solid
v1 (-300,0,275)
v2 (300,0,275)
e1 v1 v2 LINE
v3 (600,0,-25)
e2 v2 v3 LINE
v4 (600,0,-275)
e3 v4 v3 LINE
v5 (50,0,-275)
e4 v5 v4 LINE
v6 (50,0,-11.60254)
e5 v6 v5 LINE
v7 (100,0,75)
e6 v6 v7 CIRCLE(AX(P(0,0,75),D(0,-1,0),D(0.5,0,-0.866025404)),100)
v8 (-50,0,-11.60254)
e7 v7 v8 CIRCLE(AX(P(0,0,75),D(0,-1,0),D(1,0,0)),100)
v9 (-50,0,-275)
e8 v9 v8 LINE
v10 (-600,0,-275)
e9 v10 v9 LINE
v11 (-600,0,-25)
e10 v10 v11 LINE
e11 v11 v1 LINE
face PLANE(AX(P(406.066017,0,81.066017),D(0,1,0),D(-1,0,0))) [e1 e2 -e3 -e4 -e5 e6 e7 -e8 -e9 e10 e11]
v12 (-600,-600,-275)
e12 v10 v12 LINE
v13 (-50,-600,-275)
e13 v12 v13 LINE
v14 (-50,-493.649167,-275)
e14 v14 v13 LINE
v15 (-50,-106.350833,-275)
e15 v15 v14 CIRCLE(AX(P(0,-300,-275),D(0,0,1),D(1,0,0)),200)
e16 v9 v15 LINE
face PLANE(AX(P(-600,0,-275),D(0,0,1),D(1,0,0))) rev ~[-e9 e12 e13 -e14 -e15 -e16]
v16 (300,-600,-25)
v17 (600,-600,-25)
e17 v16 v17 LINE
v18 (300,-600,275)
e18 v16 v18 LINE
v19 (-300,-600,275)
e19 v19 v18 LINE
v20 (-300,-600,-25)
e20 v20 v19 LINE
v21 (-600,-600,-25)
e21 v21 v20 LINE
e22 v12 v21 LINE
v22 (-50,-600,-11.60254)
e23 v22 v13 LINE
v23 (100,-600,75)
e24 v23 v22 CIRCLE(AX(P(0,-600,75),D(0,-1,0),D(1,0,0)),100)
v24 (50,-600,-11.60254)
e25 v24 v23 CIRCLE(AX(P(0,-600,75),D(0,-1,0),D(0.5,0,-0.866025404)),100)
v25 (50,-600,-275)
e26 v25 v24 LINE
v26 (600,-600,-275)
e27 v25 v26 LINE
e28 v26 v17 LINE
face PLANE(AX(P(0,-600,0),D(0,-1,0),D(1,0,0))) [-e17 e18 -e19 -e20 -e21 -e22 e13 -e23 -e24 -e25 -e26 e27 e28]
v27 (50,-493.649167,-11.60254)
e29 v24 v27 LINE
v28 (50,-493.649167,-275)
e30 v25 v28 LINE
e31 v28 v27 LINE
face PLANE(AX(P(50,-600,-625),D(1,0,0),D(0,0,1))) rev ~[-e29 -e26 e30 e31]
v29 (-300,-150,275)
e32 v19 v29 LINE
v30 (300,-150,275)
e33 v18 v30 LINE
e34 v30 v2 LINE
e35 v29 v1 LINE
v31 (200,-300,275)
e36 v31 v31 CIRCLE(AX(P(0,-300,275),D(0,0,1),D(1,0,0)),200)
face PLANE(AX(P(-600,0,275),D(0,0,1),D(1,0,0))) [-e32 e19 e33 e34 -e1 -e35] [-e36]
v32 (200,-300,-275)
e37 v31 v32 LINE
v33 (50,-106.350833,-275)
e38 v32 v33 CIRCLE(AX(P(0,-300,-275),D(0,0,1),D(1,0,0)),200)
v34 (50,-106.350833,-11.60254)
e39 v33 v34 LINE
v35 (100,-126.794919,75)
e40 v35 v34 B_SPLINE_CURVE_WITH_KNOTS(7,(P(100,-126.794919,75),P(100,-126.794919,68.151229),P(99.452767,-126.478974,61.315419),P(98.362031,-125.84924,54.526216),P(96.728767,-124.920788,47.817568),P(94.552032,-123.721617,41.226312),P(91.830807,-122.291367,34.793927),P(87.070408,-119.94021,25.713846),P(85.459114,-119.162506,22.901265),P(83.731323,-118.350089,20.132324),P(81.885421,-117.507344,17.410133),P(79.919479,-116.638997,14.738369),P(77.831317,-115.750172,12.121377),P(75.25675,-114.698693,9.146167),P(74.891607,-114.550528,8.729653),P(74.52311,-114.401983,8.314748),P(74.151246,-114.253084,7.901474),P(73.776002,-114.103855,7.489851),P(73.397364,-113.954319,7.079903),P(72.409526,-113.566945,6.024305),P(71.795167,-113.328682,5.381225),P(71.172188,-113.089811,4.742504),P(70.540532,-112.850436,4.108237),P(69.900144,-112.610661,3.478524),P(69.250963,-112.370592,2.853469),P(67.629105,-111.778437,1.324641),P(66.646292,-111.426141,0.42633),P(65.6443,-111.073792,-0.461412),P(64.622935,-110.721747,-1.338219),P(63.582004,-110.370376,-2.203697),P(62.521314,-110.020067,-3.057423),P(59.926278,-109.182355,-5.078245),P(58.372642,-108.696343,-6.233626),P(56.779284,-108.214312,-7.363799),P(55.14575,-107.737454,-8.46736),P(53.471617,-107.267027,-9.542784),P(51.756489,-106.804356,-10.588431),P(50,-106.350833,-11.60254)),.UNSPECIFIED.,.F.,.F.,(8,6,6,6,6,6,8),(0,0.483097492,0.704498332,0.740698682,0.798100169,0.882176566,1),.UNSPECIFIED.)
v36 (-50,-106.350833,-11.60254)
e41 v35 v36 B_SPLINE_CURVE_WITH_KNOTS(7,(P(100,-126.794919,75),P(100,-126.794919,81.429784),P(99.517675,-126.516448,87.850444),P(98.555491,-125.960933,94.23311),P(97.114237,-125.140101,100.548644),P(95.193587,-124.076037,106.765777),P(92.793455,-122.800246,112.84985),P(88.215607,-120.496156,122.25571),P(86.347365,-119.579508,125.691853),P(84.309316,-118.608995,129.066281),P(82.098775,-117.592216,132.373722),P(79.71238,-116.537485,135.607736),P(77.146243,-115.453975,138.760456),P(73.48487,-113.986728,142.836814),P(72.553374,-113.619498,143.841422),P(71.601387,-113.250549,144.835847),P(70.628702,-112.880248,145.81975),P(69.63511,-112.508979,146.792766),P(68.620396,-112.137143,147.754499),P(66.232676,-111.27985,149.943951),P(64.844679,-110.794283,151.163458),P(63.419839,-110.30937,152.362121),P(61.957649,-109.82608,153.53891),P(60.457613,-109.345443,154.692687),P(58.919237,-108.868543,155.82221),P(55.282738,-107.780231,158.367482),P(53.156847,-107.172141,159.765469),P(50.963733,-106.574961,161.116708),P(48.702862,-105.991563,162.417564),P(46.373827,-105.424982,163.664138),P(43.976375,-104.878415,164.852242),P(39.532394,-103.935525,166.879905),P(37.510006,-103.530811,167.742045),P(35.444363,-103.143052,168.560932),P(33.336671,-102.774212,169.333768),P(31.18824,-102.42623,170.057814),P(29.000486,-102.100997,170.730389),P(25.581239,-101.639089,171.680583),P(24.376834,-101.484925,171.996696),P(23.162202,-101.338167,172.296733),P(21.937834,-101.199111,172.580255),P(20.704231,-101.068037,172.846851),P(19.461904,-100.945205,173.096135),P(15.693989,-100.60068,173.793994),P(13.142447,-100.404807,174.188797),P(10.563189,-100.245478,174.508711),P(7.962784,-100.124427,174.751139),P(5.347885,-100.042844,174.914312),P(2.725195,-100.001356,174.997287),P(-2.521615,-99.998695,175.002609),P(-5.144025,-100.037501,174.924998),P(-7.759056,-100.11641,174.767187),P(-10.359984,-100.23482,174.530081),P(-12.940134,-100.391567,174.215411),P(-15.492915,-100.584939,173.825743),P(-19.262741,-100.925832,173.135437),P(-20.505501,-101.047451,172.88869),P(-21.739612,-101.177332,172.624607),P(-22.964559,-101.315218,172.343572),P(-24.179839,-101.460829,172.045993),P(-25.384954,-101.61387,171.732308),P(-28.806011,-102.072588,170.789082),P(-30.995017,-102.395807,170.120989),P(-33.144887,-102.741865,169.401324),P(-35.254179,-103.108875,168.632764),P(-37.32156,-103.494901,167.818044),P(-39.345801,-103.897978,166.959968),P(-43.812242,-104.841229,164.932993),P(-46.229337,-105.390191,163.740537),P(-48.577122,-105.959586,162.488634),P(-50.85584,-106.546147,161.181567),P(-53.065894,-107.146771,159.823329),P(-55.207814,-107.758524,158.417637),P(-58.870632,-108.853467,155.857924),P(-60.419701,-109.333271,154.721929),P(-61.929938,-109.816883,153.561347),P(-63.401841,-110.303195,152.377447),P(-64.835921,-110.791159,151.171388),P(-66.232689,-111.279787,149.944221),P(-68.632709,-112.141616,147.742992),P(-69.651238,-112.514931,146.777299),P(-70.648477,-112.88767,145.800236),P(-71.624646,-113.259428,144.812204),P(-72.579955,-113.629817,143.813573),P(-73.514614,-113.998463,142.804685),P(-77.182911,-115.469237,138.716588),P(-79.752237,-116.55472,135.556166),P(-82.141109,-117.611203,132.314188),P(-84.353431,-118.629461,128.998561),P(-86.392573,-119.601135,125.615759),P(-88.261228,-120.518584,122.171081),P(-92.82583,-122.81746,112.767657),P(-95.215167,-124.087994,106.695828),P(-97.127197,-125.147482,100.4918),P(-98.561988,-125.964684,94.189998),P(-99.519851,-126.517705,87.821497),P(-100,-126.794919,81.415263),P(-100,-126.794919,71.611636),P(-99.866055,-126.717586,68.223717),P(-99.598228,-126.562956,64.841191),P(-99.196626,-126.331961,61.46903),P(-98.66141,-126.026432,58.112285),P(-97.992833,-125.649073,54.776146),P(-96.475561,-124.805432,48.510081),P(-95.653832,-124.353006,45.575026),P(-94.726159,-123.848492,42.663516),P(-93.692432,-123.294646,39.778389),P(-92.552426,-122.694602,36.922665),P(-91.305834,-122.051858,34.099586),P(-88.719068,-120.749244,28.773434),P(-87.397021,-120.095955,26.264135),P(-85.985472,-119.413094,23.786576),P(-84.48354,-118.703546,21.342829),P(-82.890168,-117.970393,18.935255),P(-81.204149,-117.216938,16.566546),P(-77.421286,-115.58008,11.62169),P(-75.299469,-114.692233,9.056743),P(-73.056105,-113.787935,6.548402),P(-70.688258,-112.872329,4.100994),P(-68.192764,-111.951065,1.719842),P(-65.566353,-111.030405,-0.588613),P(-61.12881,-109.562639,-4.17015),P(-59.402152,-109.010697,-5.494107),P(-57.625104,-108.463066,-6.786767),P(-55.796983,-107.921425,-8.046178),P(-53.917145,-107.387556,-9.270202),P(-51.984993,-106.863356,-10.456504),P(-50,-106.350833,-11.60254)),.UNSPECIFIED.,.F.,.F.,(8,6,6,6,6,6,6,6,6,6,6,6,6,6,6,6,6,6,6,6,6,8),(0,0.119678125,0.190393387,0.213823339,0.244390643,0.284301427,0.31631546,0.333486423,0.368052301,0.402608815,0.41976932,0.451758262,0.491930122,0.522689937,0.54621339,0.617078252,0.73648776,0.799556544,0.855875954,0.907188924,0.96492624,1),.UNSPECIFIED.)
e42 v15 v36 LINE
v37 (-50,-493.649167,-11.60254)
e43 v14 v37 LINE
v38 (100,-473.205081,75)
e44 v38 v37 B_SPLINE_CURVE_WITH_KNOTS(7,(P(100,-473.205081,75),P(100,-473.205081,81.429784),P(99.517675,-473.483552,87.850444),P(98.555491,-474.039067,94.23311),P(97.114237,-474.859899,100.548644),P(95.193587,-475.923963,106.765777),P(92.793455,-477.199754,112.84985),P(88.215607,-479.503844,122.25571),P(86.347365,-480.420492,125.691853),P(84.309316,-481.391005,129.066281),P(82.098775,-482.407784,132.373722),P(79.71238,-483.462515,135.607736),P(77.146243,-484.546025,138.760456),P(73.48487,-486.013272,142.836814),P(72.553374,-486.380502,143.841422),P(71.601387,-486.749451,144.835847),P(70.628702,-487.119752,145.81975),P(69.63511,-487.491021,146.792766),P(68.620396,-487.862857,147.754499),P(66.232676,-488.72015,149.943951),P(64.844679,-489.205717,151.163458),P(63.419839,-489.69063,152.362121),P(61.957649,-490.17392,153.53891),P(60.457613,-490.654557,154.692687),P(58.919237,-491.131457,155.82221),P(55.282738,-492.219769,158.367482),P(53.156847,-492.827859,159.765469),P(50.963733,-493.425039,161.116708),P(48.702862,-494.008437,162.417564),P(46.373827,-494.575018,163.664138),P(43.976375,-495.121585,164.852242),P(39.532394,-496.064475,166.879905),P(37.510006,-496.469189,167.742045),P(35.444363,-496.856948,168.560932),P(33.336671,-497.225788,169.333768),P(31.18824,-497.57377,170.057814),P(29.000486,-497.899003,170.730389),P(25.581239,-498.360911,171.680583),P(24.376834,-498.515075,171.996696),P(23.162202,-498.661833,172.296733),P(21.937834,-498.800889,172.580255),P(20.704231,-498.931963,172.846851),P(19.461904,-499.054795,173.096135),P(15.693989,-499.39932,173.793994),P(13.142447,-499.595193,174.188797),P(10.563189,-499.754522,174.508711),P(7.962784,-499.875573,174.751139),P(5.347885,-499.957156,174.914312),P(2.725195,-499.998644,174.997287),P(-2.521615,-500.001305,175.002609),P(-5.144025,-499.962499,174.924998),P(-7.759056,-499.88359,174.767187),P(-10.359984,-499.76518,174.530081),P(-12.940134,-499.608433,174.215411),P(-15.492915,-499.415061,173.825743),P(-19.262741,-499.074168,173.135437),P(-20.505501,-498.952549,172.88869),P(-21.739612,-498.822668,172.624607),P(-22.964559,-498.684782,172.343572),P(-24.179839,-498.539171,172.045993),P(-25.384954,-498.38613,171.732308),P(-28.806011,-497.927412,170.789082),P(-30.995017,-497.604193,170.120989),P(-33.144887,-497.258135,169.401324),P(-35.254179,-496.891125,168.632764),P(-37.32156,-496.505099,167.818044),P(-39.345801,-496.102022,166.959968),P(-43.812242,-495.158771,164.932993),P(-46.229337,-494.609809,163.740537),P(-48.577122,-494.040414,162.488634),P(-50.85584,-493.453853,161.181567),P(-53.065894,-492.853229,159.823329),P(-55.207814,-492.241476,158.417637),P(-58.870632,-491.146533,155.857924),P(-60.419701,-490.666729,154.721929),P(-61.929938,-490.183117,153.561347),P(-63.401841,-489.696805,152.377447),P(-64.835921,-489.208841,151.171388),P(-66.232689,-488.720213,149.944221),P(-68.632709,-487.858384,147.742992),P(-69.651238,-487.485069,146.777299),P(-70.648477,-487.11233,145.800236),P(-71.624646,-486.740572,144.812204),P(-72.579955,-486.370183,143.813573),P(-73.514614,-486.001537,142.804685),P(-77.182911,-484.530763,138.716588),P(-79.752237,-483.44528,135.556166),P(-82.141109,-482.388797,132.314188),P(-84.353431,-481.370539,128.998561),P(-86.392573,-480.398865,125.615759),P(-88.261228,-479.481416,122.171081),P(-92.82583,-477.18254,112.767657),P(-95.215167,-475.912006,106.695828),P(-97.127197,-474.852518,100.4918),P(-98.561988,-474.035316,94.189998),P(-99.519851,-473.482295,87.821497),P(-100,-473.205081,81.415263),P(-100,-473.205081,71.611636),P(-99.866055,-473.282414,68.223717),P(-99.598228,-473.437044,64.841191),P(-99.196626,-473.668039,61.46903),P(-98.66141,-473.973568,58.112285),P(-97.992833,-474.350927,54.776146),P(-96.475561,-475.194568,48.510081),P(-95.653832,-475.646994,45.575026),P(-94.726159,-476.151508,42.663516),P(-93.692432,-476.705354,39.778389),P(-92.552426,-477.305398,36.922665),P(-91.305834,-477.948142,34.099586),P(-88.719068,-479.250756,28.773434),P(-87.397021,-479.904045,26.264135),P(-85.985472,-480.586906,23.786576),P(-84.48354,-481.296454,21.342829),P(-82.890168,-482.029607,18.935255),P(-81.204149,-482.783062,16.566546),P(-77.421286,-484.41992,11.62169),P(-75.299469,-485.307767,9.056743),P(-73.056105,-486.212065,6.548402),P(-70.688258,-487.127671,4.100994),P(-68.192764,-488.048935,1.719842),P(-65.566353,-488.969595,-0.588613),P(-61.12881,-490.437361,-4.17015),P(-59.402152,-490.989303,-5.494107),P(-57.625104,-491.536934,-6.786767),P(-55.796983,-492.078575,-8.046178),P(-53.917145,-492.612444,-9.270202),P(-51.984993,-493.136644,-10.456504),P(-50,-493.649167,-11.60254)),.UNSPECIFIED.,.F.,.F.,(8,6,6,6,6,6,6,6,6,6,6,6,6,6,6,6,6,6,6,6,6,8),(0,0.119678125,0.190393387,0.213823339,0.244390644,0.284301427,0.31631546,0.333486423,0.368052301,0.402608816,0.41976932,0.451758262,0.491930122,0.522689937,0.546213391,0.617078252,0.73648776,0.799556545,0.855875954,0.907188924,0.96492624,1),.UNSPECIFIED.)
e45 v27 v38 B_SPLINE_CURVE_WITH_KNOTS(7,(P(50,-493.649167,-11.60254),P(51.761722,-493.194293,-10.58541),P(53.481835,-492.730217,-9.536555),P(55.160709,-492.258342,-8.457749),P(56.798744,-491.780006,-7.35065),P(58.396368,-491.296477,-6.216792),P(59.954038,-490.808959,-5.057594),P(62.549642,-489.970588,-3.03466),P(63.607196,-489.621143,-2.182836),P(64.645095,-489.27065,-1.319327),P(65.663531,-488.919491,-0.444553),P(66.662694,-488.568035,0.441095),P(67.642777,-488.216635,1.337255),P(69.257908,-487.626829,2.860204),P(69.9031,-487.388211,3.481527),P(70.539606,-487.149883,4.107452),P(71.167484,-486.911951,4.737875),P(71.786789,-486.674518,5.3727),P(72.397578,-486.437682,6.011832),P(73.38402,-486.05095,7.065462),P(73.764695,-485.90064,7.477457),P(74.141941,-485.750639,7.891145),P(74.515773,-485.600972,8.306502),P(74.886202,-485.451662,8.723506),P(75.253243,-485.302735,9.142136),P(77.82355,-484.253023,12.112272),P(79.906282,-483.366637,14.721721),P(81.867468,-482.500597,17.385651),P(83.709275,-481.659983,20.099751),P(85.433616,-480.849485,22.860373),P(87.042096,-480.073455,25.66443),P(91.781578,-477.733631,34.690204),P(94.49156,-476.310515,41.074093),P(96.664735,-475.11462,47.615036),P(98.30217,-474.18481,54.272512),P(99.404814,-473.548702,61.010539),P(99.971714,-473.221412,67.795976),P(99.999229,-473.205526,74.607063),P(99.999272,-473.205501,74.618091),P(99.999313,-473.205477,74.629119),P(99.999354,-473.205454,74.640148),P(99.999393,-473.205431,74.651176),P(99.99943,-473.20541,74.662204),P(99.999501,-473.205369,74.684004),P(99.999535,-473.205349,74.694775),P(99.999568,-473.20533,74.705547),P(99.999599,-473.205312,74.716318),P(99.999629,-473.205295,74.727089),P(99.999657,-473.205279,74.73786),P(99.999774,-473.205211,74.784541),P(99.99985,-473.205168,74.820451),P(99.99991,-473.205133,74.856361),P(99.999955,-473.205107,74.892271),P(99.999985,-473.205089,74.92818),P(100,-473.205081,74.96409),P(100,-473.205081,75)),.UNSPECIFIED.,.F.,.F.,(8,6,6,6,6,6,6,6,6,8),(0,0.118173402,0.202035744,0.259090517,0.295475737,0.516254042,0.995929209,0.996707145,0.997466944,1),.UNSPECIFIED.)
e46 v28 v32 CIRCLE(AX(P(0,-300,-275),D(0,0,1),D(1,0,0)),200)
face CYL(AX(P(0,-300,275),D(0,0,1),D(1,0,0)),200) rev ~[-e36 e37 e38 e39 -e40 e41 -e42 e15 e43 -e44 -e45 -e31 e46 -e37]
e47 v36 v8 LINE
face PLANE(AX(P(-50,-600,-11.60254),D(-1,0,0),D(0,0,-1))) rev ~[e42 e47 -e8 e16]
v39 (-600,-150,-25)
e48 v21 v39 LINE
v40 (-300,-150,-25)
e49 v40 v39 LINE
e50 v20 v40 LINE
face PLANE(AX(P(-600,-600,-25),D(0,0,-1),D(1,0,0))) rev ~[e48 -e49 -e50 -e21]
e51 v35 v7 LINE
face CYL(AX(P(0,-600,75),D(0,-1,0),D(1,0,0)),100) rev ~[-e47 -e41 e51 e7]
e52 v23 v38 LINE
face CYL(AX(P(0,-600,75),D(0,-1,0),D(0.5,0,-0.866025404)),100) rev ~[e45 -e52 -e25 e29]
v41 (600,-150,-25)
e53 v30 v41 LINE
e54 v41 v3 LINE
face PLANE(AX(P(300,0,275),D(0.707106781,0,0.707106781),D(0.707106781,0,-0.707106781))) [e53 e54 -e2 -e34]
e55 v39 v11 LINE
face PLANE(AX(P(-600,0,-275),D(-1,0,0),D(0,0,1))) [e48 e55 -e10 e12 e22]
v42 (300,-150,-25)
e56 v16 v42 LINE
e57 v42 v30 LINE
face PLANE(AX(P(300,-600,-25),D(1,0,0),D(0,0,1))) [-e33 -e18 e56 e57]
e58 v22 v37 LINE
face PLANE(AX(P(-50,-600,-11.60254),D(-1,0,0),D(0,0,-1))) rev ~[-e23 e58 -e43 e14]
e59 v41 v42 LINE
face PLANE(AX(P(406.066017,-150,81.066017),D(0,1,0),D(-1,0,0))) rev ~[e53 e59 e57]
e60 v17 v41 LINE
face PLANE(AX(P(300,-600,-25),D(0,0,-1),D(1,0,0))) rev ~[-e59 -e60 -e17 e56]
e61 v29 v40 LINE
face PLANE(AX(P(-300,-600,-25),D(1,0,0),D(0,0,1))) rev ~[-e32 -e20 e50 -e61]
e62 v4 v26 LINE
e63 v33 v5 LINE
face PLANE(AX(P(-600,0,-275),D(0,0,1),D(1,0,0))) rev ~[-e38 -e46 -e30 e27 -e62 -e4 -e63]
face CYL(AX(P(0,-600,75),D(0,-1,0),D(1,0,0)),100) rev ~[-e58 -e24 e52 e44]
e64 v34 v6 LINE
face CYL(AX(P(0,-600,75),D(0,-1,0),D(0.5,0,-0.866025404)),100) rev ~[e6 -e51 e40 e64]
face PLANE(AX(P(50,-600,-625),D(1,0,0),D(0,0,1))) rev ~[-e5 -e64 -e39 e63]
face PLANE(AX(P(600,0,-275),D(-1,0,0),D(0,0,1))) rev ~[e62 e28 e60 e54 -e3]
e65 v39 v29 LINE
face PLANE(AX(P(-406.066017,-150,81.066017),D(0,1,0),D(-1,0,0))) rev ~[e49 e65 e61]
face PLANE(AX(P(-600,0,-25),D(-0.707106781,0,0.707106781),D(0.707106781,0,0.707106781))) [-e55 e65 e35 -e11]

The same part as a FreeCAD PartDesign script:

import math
import FreeCAD as App
import Part
import Sketcher

V = App.Vector
Q = App.Units.Quantity


def add_polygon(sketch, points):
    """Adds a closed chain of lines whose ends are joined by coincident constraints."""
    first, n = sketch.GeometryCount, len(points)
    for a, b in zip(points, points[1:] + points[:1]):
        sketch.addGeometry(Part.LineSegment(App.Vector(*a, 0), App.Vector(*b, 0)), False)
    for i in range(n):
        sketch.addConstraint(Sketcher.Constraint("Coincident", first + i, 2, first + (i + 1) % n, 1))

doc = App.newDocument("Part")
body = doc.addObject("PartDesign::Body", "Body")

sketch1 = doc.addObject("Sketcher::SketchObject", "Sketch")
body.addObject(sketch1)
sketch1.AttachmentSupport = (doc.XZ_Plane, [""])
sketch1.MapMode = "FlatFace"
add_polygon(sketch1, [(-600, 275), (-600, -275), (600, -275), (600, 275)])
sketch1.addConstraint([
    Sketcher.Constraint("Vertical", 0),
    Sketcher.Constraint("Horizontal", 1),
    Sketcher.Constraint("Vertical", 2),
    Sketcher.Constraint("Horizontal", 3),
    Sketcher.Constraint("Symmetric", 0, 2, 2, 2, -1, 1),
    Sketcher.Constraint("DistanceX", 1, 1, 1, 2, Q("1200 mm")),
    Sketcher.Constraint("DistanceY", 0, 2, 0, 1, Q("550 mm")),
])
pad1 = doc.addObject("PartDesign::Pad", "Pad")
body.addObject(pad1)
pad1.Profile = sketch1
pad1.Length = 600

sketch2 = doc.addObject("Sketcher::SketchObject", "Sketch001")
body.addObject(sketch2)
sketch2.AttachmentSupport = (doc.XZ_Plane, [""])
sketch2.MapMode = "FlatFace"
sketch2.AttachmentOffset = App.Placement(V(0, 0, 600), App.Rotation())
add_polygon(sketch2, [(-600, 275), (-600, -25), (-300, -25), (-300, 275)])
add_polygon(sketch2, [(300, 275), (300, -25), (600, -25), (600, 275)])
sketch2.addConstraint([
    Sketcher.Constraint("Vertical", 0),
    Sketcher.Constraint("Horizontal", 1),
    Sketcher.Constraint("Vertical", 2),
    Sketcher.Constraint("Horizontal", 3),
    Sketcher.Constraint("Vertical", 4),
    Sketcher.Constraint("Horizontal", 5),
    Sketcher.Constraint("Vertical", 6),
    Sketcher.Constraint("Horizontal", 7),
    Sketcher.Constraint("Symmetric", 1, 2, 4, 2, -2),
    Sketcher.Constraint("Symmetric", 3, 2, 6, 2, -2),
    Sketcher.Constraint("Equal", 7, 0),
    Sketcher.Constraint("DistanceX", 1, 1, 1, 2, Q("300 mm")),
    Sketcher.Constraint("DistanceX", 0, 2, -1, 1, Q("600 mm")),
    Sketcher.Constraint("DistanceY", 0, 2, -1, 1, Q("25 mm")),
])
pocket1 = doc.addObject("PartDesign::Pocket", "Pocket")
body.addObject(pocket1)
pocket1.Profile = sketch2
pocket1.Type = "ThroughAll"

sketch3 = doc.addObject("Sketcher::SketchObject", "Sketch002")
body.addObject(sketch3)
sketch3.AttachmentSupport = (doc.XZ_Plane, [""])
sketch3.MapMode = "FlatFace"
add_polygon(sketch3, [(300, -25), (300, 275), (600, -25)])
add_polygon(sketch3, [(-600, -25), (-300, 275), (-300, -25)])
sketch3.addConstraint([
    Sketcher.Constraint("Vertical", 0),
    Sketcher.Constraint("Horizontal", 2),
    Sketcher.Constraint("Vertical", 4),
    Sketcher.Constraint("Horizontal", 5),
    Sketcher.Constraint("Symmetric", 0, 2, 3, 2, -2),
    Sketcher.Constraint("Symmetric", 1, 2, 5, 2, -2),
    Sketcher.Constraint("Perpendicular", 1, 3),
    Sketcher.Constraint("DistanceX", 2, 2, 2, 1, Q("300 mm")),
    Sketcher.Constraint("DistanceX", -1, 1, 0, 2, Q("300 mm")),
    Sketcher.Constraint("DistanceY", -1, 1, 0, 2, Q("275 mm")),
])
pad2 = doc.addObject("PartDesign::Pad", "Pad001")
body.addObject(pad2)
pad2.Profile = sketch3
pad2.Length = 150

sketch4 = doc.addObject("Sketcher::SketchObject", "Sketch003")
body.addObject(sketch4)
sketch4.AttachmentSupport = (doc.XY_Plane, [""])
sketch4.MapMode = "FlatFace"
sketch4.AttachmentOffset = App.Placement(V(0, 0, 275), App.Rotation())
sketch4.addGeometry(Part.Circle(V(0, -300, 0), V(0, 0, 1), 200), False)
sketch4.addConstraint([
    Sketcher.Constraint("PointOnObject", 0, 3, -2),
    Sketcher.Constraint("Diameter", 0, Q("400 mm")),
    Sketcher.Constraint("DistanceY", 0, 3, -1, 1, Q("300 mm")),
])
pocket2 = doc.addObject("PartDesign::Pocket", "Pocket001")
body.addObject(pocket2)
pocket2.Profile = sketch4
pocket2.Type = "ThroughAll"

sketch5 = doc.addObject("Sketcher::SketchObject", "Sketch004")
body.addObject(sketch5)
sketch5.AttachmentSupport = (doc.XZ_Plane, [""])
sketch5.MapMode = "FlatFace"
sketch5.AttachmentOffset = App.Placement(V(0, 0, 600), App.Rotation())
sketch5.addGeometry([
    Part.ArcOfCircle(Part.Circle(V(0, 75, 0), V(0, 0, 1), 100), math.radians(-60), math.radians(0)),
    Part.ArcOfCircle(Part.Circle(V(0, 75, 0), V(0, 0, 1), 100), math.radians(0), math.radians(240)),
    Part.LineSegment(V(-50, -12, 0), V(-50, -625, 0)),
    Part.LineSegment(V(-50, -625, 0), V(50, -625, 0)),
    Part.LineSegment(V(50, -625, 0), V(50, -12, 0)),
], False)
sketch5.addConstraint([
    Sketcher.Constraint("Tangent", 0, 2, 1, 1),
    Sketcher.Constraint("Coincident", 1, 2, 2, 1),
    Sketcher.Constraint("Coincident", 2, 2, 3, 1),
    Sketcher.Constraint("Coincident", 3, 2, 4, 1),
    Sketcher.Constraint("Coincident", 4, 2, 0, 1),
    Sketcher.Constraint("Vertical", 2),
    Sketcher.Constraint("Horizontal", 3),
    Sketcher.Constraint("Vertical", 4),
    Sketcher.Constraint("Equal", 0, 1),
    Sketcher.Constraint("Symmetric", 1, 2, 4, 2, -2),
    Sketcher.Constraint("Horizontal", 1, 3, 0, 2),
    Sketcher.Constraint("Radius", 0, Q("100 mm")),
    Sketcher.Constraint("DistanceX", 3, 1, 3, 2, Q("100 mm")),
    Sketcher.Constraint("DistanceY", -1, 1, 0, 3, Q("75 mm")),
    Sketcher.Constraint("DistanceY", 2, 2, -1, 1, Q("625 mm")),
])
pocket3 = doc.addObject("PartDesign::Pocket", "Pocket002")
body.addObject(pocket3)
pocket3.Profile = sketch5
pocket3.Type = "ThroughAll"

doc.recompute()
